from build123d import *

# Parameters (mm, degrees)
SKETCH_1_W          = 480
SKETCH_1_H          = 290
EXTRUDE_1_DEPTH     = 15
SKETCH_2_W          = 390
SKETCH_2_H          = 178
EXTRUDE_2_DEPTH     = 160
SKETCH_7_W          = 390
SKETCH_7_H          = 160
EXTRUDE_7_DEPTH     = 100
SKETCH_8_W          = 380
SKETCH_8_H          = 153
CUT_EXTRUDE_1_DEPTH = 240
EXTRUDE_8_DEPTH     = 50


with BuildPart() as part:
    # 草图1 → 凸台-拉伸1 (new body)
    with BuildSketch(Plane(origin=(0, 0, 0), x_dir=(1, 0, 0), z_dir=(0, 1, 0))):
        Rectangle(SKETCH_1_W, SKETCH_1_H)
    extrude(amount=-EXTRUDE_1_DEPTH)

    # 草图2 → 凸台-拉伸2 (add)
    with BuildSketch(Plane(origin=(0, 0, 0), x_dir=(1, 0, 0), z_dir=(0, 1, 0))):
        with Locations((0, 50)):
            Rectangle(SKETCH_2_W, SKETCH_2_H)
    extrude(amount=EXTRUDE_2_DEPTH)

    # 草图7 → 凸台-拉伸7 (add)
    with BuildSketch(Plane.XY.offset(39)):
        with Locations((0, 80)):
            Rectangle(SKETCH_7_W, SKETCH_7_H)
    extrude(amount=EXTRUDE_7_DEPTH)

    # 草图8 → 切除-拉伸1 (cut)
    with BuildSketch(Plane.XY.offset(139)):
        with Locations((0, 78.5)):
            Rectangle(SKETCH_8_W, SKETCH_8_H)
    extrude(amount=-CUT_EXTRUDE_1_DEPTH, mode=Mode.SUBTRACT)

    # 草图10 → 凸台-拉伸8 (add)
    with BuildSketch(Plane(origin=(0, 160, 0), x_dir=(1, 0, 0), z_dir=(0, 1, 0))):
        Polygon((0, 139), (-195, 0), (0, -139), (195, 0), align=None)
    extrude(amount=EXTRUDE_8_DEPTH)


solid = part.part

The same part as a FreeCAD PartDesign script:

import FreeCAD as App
import Part
import Sketcher
from FreeCAD import Vector
Q = App.Units.Quantity


def add_polygon(sketch, points):
    """Adds a closed chain of lines whose ends are joined by coincident constraints."""
    first, n = sketch.GeometryCount, len(points)
    for a, b in zip(points, points[1:] + points[:1]):
        sketch.addGeometry(Part.LineSegment(App.Vector(*a, 0), App.Vector(*b, 0)), False)
    for i in range(n):
        sketch.addConstraint(Sketcher.Constraint("Coincident", first + i, 2, first + (i + 1) % n, 1))

doc = App.newDocument("Part")
body = doc.addObject("PartDesign::Body", "Body")

# Sketch on XZ plane
sketch1 = body.newObject("Sketcher::SketchObject", "Sketch")
sketch1.AttachmentSupport = (doc.getObject("XZ_Plane"), [""])
sketch1.MapMode = "FlatFace"
add_polygon(sketch1, [(-240, -145), (-240, 145), (240, 145), (240, -145)])  # lines 0-3
sketch1.addConstraint(Sketcher.Constraint("Vertical", 0))
sketch1.addConstraint(Sketcher.Constraint("Horizontal", 1))
sketch1.addConstraint(Sketcher.Constraint("Vertical", 2))
sketch1.addConstraint(Sketcher.Constraint("Horizontal", 3))
sketch1.addConstraint(Sketcher.Constraint("Symmetric", 0, 2, 2, 2, -1, 1))
sketch1.addConstraint(Sketcher.Constraint("DistanceX", 1, 1, 1, 2, Q("480 mm")))
sketch1.addConstraint(Sketcher.Constraint("DistanceY", 0, 1, 0, 2, Q("290 mm")))
pad1 = body.newObject("PartDesign::Pad", "Pad")
pad1.Profile = sketch1
pad1.Length = 15

# Sketch on XZ plane
sketch2 = body.newObject("Sketcher::SketchObject", "Sketch001")
sketch2.AttachmentSupport = (doc.getObject("XZ_Plane"), [""])
sketch2.MapMode = "FlatFace"
add_polygon(sketch2, [(-195, -139), (-195, 39), (195, 39), (195, -139)])  # lines 0-3
sketch2.addConstraint(Sketcher.Constraint("Vertical", 0))
sketch2.addConstraint(Sketcher.Constraint("Horizontal", 1))
sketch2.addConstraint(Sketcher.Constraint("Vertical", 2))
sketch2.addConstraint(Sketcher.Constraint("Horizontal", 3))
sketch2.addConstraint(Sketcher.Constraint("DistanceX", 1, 1, 1, 2, Q("390 mm")))
sketch2.addConstraint(Sketcher.Constraint("DistanceY", 0, 1, 0, 2, Q("178 mm")))
sketch2.addConstraint(Sketcher.Constraint("DistanceX", 0, 2, -1, 1, Q("195 mm")))
sketch2.addConstraint(Sketcher.Constraint("DistanceY", -1, 1, 0, 2, Q("39 mm")))
pad2 = body.newObject("PartDesign::Pad", "Pad001")
pad2.Profile = sketch2
pad2.Length = 160
pad2.Reversed = True

# Sketch on XY plane
sketch3 = body.newObject("Sketcher::SketchObject", "Sketch002")
sketch3.AttachmentSupport = (doc.getObject("XY_Plane"), [""])
sketch3.MapMode = "FlatFace"
sketch3.AttachmentOffset = App.Placement(Vector(0, 0, 39), App.Rotation())
add_polygon(sketch3, [(-195, 160), (-195, 0), (195, 0), (195, 160)])  # lines 0-3
sketch3.addConstraint(Sketcher.Constraint("Vertical", 0))
sketch3.addConstraint(Sketcher.Constraint("Horizontal", 1))
sketch3.addConstraint(Sketcher.Constraint("Vertical", 2))
sketch3.addConstraint(Sketcher.Constraint("Horizontal", 3))
sketch3.addConstraint(Sketcher.Constraint("Symmetric", 0, 2, 1, 2, -1, 1))
sketch3.addConstraint(Sketcher.Constraint("DistanceX", 1, 1, 1, 2, Q("390 mm")))
sketch3.addConstraint(Sketcher.Constraint("DistanceY", 0, 2, 0, 1, Q("160 mm")))
pad3 = body.newObject("PartDesign::Pad", "Pad002")
pad3.Profile = sketch3
pad3.Length = 100

# Sketch on XY plane
sketch4 = body.newObject("Sketcher::SketchObject", "Sketch003")
sketch4.AttachmentSupport = (doc.getObject("XY_Plane"), [""])
sketch4.MapMode = "FlatFace"
sketch4.AttachmentOffset = App.Placement(Vector(0, 0, 139), App.Rotation())
add_polygon(sketch4, [(-190, 155), (-190, 2), (190, 2), (190, 155)])  # lines 0-3
sketch4.addConstraint(Sketcher.Constraint("Vertical", 0))
sketch4.addConstraint(Sketcher.Constraint("Horizontal", 1))
sketch4.addConstraint(Sketcher.Constraint("Vertical", 2))
sketch4.addConstraint(Sketcher.Constraint("Horizontal", 3))
sketch4.addConstraint(Sketcher.Constraint("DistanceX", 1, 1, 1, 2, Q("380 mm")))
sketch4.addConstraint(Sketcher.Constraint("DistanceY", 0, 2, 0, 1, Q("153 mm")))
sketch4.addConstraint(Sketcher.Constraint("DistanceX", 0, 2, -1, 1, Q("190 mm")))
sketch4.addConstraint(Sketcher.Constraint("DistanceY", -1, 1, 0, 2, Q("2 mm")))
pocket1 = body.newObject("PartDesign::Pocket", "Pocket")
pocket1.Profile = sketch4
pocket1.Length = 240

# Sketch on XZ plane
sketch5 = body.newObject("Sketcher::SketchObject", "Sketch004")
sketch5.AttachmentSupport = (doc.getObject("XZ_Plane"), [""])
sketch5.MapMode = "FlatFace"
sketch5.AttachmentOffset = App.Placement(Vector(0, 0, -160), App.Rotation())
add_polygon(sketch5, [(0, -139), (-195, 0), (0, 139), (195, 0)])  # lines 0-3
sketch5.addConstraint(Sketcher.Constraint("Symmetric", 0, 2, 2, 2, -1, 1))
sketch5.addConstraint(Sketcher.Constraint("Symmetric", 1, 2, 3, 2, -1, 1))
sketch5.addConstraint(Sketcher.Constraint("PointOnObject", 0, 2, -1))
sketch5.addConstraint(Sketcher.Constraint("PointOnObject", 1, 2, -2))
sketch5.addConstraint(Sketcher.Constraint("DistanceX", 0, 2, -1, 1, Q("195 mm")))
sketch5.addConstraint(Sketcher.Constraint("DistanceY", -1, 1, 1, 2, Q("139 mm")))
pad4 = body.newObject("PartDesign::Pad", "Pad003")
pad4.Profile = sketch5
pad4.Length = 50
pad4.Reversed = True

doc.recompute()
